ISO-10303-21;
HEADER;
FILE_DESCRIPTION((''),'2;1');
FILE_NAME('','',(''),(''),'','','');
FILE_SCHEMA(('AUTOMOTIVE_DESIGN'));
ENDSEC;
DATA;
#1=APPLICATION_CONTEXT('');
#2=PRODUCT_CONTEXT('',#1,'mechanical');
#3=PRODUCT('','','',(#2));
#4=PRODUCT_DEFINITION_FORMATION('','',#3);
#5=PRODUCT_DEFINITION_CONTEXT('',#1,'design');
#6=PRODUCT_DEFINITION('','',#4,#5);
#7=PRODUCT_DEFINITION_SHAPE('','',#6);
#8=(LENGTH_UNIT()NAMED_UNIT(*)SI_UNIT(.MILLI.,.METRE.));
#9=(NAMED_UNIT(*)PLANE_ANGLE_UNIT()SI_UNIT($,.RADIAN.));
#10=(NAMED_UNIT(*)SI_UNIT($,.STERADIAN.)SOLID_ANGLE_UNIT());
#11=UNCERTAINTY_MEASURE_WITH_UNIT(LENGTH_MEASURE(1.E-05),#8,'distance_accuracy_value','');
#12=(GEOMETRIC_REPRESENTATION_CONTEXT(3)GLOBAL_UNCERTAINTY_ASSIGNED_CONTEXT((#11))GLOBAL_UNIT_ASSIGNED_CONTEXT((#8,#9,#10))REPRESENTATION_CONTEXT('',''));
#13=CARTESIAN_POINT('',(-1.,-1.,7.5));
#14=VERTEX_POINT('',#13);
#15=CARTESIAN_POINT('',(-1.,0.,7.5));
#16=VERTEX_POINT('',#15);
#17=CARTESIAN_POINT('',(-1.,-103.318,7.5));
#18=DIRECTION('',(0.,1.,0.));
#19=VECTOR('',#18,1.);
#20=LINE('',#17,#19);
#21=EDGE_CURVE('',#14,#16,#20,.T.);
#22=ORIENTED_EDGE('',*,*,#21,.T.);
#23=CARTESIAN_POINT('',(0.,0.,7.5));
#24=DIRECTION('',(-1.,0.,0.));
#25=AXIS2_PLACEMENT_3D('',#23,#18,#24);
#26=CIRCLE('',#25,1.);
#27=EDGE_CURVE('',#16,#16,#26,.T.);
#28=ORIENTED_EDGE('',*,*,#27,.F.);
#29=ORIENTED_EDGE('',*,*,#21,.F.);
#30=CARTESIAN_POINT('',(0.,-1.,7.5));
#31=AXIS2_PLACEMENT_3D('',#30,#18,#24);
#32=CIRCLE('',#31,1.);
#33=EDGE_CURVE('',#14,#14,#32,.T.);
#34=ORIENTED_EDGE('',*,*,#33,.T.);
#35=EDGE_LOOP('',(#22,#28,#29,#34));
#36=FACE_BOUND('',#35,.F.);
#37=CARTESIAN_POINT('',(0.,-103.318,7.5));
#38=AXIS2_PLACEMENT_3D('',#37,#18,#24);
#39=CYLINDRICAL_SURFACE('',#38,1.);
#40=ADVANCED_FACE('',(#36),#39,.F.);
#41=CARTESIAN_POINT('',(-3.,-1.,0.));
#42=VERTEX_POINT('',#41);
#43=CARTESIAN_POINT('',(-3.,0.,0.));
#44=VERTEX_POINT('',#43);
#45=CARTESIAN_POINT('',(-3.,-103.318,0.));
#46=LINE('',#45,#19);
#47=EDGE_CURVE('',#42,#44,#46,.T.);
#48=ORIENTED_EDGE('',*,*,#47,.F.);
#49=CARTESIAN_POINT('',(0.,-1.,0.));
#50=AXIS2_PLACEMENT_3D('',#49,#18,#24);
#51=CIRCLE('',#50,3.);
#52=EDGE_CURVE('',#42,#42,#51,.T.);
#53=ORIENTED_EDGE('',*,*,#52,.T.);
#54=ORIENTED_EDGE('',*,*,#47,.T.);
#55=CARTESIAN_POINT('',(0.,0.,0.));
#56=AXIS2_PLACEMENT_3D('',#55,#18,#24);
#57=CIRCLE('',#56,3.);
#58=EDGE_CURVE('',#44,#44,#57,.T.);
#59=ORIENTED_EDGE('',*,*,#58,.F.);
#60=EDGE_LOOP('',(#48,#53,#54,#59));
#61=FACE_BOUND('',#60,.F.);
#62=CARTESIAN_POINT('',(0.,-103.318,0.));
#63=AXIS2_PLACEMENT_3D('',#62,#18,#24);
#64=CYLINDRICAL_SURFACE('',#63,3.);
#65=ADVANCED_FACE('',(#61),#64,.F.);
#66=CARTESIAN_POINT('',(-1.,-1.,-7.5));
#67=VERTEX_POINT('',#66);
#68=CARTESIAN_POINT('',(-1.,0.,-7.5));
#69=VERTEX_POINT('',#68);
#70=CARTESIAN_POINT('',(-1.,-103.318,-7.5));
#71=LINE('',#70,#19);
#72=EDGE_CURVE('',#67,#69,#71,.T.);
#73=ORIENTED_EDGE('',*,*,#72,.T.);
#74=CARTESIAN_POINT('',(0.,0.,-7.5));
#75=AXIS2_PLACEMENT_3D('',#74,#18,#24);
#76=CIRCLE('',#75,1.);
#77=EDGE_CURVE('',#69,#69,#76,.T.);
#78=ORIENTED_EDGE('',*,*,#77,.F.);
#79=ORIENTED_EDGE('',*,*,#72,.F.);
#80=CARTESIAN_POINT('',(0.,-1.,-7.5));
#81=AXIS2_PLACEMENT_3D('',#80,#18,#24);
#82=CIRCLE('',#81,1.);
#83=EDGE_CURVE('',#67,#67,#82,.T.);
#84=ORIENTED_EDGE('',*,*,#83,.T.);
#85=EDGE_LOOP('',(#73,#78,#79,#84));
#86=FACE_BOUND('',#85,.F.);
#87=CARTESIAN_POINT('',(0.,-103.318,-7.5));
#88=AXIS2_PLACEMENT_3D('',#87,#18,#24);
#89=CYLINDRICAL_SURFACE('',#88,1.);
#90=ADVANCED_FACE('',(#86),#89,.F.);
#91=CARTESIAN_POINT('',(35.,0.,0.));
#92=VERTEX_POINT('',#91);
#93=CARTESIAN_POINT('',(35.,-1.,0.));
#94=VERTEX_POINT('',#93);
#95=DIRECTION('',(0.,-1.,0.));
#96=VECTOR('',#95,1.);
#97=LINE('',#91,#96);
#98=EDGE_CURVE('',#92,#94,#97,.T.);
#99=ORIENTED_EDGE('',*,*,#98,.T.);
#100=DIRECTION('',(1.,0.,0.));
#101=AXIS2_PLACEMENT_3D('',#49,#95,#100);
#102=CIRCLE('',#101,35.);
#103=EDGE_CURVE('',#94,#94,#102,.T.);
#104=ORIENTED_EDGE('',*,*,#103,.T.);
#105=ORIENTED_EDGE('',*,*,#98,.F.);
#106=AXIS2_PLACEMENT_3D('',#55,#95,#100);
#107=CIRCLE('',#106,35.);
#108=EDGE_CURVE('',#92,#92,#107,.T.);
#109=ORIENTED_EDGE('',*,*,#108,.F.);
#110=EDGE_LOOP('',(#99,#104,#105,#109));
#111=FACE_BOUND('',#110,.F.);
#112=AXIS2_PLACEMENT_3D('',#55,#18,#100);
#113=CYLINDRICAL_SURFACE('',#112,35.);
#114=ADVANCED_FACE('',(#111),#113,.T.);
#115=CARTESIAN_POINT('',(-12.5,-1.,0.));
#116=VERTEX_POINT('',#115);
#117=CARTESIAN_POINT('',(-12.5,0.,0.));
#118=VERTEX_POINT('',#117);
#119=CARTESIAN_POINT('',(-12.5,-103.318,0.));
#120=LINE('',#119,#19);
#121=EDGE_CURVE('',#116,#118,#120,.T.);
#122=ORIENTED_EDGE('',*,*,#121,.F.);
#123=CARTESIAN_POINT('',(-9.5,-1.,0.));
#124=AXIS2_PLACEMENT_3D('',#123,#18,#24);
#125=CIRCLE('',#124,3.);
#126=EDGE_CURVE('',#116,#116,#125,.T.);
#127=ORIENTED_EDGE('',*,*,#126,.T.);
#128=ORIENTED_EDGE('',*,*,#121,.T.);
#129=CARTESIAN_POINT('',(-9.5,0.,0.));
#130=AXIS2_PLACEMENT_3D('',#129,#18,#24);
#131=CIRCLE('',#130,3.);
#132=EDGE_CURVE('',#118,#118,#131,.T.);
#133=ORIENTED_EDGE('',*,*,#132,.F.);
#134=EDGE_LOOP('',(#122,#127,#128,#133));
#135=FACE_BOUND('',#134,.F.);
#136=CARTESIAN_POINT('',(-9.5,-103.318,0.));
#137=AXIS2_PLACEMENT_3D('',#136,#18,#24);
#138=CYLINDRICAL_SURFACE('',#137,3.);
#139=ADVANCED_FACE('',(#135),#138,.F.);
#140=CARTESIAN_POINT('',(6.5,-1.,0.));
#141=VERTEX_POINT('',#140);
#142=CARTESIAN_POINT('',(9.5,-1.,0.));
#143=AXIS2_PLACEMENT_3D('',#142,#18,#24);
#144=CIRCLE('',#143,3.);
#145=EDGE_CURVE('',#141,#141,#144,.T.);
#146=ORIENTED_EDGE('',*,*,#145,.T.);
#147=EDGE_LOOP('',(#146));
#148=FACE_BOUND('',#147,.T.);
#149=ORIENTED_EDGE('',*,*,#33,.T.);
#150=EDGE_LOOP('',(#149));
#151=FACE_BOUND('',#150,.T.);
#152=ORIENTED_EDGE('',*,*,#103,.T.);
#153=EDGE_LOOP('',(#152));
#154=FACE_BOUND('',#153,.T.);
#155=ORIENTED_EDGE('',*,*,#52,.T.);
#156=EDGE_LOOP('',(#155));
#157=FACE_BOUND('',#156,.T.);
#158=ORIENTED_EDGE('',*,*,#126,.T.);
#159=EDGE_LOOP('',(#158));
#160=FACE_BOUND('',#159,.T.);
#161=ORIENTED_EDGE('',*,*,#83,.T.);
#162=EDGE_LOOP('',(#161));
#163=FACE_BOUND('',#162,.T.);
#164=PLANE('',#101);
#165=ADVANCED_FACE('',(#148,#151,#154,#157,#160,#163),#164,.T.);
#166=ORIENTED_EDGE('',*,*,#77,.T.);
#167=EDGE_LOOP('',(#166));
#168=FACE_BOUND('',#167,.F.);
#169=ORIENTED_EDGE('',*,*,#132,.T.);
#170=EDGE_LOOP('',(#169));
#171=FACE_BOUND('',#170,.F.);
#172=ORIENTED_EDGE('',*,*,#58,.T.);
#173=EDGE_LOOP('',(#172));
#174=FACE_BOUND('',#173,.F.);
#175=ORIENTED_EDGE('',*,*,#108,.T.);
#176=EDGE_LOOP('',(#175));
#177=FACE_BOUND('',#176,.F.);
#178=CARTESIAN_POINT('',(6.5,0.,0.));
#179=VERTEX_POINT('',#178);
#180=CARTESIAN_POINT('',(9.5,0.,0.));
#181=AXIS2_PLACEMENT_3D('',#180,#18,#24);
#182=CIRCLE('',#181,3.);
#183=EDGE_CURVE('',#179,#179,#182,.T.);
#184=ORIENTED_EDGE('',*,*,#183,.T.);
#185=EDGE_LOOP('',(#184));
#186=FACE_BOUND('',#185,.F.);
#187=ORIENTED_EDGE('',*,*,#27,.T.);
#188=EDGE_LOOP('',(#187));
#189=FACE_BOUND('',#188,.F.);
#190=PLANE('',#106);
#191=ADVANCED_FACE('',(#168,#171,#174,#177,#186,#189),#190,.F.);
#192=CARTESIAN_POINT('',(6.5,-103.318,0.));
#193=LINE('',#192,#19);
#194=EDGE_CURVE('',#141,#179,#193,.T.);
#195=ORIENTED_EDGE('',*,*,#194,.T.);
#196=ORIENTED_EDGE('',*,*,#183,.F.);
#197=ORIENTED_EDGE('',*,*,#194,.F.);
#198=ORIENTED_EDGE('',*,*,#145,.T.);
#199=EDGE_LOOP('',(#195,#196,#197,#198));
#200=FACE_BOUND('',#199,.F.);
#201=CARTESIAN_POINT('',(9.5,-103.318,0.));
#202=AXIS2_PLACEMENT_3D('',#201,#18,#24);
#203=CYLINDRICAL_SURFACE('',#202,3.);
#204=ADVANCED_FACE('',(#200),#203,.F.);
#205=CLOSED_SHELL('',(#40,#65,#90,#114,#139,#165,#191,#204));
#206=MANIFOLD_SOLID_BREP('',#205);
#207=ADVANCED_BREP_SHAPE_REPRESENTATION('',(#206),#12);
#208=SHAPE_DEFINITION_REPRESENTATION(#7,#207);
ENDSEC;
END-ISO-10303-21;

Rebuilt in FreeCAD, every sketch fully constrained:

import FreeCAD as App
import Part
import Sketcher
from FreeCAD import Vector
Q = App.Units.Quantity

doc = App.newDocument("Part")
body = doc.addObject("PartDesign::Body", "Body")

# Sketch on XZ plane
sketch1 = body.newObject("Sketcher::SketchObject", "Sketch")
sketch1.AttachmentSupport = (doc.getObject("XZ_Plane"), [""])
sketch1.MapMode = "FlatFace"
sketch1.addGeometry(Part.Circle(Vector(0, 0, 0), Vector(0, 0, 1), 35), False)
sketch1.addConstraint(Sketcher.Constraint("Coincident", 0, 3, -1, 1))
sketch1.addConstraint(Sketcher.Constraint("Diameter", 0, Q("70 mm")))
pad1 = body.newObject("PartDesign::Pad", "Pad")
pad1.Profile = sketch1
pad1.Length = 1

# Sketch on XZ plane
sketch2 = body.newObject("Sketcher::SketchObject", "Sketch001")
sketch2.AttachmentSupport = (doc.getObject("XZ_Plane"), [""])
sketch2.MapMode = "FlatFace"
sketch2.AttachmentOffset = App.Placement(Vector(0, 0, 4.318), App.Rotation())
sketch2.addGeometry(Part.Circle(Vector(-9.5, 0, 0), Vector(0, 0, 1), 3), False)
sketch2.addGeometry(Part.Circle(Vector(9.5, 0, 0), Vector(0, 0, 1), 3), False)
sketch2.addGeometry(Part.Circle(Vector(0, 0, 0), Vector(0, 0, 1), 3), False)
sketch2.addConstraint(Sketcher.Constraint("Coincident", 2, 3, -1, 1))
sketch2.addConstraint(Sketcher.Constraint("Equal", 0, 1))
sketch2.addConstraint(Sketcher.Constraint("Equal", 1, 2))
sketch2.addConstraint(Sketcher.Constraint("Symmetric", 0, 3, 1, 3, -1, 1))
sketch2.addConstraint(Sketcher.Constraint("PointOnObject", 0, 3, -1))
sketch2.addConstraint(Sketcher.Constraint("Diameter", 0, Q("6 mm")))
sketch2.addConstraint(Sketcher.Constraint("DistanceX", 0, 3, 1, 3, Q("19 mm")))
doc.recompute()
hole = body.newObject("PartDesign::Hole", "Hole")
hole.Profile = sketch2
hole.ThreadType = "None"
hole.Diameter = 6
hole.DepthType = "ThroughAll"

# Sketch on XZ plane
sketch3 = body.newObject("Sketcher::SketchObject", "Sketch002")
sketch3.AttachmentSupport = (doc.getObject("XZ_Plane"), [""])
sketch3.MapMode = "FlatFace"
sketch3.AttachmentOffset = App.Placement(Vector(0, 0, 4.318), App.Rotation())
sketch3.addGeometry(Part.Circle(Vector(0, 7.5, 0), Vector(0, 0, 1), 1), False)
sketch3.addGeometry(Part.Circle(Vector(0, -7.5, 0), Vector(0, 0, 1), 1), False)
sketch3.addConstraint(Sketcher.Constraint("Equal", 0, 1))
sketch3.addConstraint(Sketcher.Constraint("Symmetric", 0, 3, 1, 3, -1, 1))
sketch3.addConstraint(Sketcher.Constraint("PointOnObject", 0, 3, -2))
sketch3.addConstraint(Sketcher.Constraint("Diameter", 0, Q("2 mm")))
sketch3.addConstraint(Sketcher.Constraint("DistanceY", 1, 3, 0, 3, Q("15 mm")))
doc.recompute()
hole2 = body.newObject("PartDesign::Hole", "Hole001")
hole2.Profile = sketch3
hole2.ThreadType = "None"
hole2.Diameter = 2
hole2.DepthType = "ThroughAll"

doc.recompute()
